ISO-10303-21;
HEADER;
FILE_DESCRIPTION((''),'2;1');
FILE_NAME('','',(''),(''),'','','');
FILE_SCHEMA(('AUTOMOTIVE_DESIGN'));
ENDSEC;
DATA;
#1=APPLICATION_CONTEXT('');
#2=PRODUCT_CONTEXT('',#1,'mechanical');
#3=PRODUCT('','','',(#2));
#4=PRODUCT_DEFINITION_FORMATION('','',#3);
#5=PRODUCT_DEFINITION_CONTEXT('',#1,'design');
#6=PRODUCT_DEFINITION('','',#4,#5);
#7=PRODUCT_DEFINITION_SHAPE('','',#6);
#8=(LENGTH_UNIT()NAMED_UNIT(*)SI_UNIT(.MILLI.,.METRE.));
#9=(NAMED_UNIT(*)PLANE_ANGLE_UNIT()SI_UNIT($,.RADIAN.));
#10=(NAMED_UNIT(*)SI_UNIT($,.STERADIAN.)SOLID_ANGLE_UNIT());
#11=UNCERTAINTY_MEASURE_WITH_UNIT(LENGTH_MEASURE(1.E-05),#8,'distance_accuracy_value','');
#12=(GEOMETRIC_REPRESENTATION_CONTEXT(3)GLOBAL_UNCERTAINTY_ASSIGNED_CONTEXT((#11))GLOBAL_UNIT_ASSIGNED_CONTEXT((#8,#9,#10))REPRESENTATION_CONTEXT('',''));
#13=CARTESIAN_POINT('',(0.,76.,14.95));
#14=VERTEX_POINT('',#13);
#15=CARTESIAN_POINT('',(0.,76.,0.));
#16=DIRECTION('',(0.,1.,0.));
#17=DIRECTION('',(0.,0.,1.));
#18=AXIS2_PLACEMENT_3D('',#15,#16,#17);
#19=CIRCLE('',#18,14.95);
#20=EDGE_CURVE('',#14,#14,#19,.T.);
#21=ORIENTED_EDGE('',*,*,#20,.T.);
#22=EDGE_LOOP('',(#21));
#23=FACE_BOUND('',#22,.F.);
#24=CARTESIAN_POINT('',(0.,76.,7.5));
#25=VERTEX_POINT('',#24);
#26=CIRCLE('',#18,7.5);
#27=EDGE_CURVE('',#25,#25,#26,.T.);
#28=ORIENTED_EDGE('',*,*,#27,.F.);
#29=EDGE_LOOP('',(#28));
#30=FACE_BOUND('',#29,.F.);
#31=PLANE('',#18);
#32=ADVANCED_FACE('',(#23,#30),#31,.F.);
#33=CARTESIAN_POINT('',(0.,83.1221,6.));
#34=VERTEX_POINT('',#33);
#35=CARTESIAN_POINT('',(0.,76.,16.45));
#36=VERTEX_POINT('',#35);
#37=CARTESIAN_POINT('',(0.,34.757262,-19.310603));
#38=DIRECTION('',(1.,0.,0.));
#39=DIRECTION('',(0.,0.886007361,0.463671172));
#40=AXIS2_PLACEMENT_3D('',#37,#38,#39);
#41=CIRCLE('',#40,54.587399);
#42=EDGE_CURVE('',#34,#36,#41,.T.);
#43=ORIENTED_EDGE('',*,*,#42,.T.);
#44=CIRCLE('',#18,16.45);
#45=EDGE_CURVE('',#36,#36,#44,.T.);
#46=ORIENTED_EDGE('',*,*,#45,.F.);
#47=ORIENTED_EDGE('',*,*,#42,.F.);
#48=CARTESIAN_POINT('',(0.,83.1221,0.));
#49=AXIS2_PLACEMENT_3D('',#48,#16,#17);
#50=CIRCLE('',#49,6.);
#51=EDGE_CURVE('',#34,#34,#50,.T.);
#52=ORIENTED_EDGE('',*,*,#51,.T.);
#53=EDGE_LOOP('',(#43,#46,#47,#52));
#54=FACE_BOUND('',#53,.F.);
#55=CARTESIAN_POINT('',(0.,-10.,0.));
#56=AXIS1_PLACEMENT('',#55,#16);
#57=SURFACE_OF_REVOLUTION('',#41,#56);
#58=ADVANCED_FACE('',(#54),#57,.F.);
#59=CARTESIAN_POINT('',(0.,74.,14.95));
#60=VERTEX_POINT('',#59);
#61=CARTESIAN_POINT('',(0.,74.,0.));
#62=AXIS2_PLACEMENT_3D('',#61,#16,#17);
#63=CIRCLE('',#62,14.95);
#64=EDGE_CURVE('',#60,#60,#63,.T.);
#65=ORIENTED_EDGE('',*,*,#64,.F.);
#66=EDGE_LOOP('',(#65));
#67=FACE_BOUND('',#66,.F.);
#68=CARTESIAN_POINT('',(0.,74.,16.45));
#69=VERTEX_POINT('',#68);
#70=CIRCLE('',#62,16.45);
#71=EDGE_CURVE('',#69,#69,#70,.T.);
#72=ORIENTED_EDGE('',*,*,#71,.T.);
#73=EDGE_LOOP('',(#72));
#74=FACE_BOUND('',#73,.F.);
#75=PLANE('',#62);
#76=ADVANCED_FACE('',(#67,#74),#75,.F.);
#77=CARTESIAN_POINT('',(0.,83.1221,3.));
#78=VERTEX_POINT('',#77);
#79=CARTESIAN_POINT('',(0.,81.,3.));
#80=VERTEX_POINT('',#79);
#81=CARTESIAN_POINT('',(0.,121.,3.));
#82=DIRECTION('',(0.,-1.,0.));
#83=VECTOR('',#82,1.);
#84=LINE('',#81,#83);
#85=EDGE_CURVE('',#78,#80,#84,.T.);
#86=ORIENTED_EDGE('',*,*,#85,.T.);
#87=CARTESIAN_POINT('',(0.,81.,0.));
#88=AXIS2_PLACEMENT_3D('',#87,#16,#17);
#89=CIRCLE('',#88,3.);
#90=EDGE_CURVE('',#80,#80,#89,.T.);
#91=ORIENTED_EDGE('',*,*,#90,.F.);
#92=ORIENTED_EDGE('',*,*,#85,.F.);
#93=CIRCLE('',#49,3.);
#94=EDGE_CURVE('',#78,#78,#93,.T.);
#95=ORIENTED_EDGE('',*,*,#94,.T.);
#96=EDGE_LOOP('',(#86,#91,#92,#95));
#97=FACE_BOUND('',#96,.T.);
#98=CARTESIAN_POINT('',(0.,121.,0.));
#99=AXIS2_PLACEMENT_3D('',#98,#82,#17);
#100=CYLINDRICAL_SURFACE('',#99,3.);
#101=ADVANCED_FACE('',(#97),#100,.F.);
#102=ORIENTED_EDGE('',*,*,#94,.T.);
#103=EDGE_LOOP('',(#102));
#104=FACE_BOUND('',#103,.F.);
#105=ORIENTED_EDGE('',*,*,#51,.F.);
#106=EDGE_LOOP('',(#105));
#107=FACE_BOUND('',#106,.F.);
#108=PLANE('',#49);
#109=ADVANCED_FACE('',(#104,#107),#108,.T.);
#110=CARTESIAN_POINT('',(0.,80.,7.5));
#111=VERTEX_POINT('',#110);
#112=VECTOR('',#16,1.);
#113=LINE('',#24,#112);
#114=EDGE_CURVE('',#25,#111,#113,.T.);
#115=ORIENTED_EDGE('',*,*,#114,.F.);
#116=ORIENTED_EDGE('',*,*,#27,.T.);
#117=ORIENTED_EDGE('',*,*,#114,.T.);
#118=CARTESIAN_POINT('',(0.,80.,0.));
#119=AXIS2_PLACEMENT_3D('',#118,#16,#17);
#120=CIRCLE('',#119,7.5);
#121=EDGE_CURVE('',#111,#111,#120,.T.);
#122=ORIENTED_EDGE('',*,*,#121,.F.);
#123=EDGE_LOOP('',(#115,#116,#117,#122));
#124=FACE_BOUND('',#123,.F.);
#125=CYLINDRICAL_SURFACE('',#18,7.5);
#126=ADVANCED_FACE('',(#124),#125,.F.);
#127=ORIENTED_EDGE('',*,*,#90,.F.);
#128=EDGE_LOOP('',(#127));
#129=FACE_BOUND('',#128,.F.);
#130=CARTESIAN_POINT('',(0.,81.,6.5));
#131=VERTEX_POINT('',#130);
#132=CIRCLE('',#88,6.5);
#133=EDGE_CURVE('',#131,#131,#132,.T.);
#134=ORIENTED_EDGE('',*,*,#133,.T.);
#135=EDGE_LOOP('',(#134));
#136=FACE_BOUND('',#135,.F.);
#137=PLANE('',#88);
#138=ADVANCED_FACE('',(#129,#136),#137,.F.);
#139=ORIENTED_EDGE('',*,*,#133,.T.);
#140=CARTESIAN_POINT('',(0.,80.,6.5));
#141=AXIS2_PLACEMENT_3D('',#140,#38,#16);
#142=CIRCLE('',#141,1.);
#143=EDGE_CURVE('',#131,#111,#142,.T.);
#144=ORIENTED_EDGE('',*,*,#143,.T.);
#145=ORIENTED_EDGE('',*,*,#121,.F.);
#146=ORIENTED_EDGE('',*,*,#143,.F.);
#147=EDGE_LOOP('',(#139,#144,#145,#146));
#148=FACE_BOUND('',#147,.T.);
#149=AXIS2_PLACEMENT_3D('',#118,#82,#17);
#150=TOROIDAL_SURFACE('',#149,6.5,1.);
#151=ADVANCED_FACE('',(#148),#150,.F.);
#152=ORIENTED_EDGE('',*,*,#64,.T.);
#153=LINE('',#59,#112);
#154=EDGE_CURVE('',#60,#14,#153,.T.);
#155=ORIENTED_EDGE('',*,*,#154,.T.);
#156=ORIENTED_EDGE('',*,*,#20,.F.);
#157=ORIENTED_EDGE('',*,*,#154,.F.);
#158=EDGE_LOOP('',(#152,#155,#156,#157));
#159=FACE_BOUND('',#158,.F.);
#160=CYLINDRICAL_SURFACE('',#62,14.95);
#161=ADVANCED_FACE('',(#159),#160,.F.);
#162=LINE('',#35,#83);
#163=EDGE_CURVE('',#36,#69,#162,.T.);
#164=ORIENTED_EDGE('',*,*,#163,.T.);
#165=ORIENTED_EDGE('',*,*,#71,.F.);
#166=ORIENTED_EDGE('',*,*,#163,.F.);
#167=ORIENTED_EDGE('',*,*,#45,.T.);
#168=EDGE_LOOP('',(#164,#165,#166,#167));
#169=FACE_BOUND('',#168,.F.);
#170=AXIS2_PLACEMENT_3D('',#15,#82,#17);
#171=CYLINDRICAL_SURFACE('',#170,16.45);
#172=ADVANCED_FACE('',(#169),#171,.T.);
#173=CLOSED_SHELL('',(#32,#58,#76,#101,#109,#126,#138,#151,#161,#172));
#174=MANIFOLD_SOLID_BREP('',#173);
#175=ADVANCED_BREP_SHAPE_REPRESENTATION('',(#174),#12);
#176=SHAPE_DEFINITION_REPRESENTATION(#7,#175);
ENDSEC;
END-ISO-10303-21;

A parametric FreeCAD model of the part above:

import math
import FreeCAD as App
import Part
import Sketcher

V = App.Vector
Q = App.Units.Quantity

doc = App.newDocument("Part")
body = doc.addObject("PartDesign::Body", "Body")

sketch1 = doc.addObject("Sketcher::SketchObject", "Sketch")
body.addObject(sketch1)
sketch1.AttachmentSupport = (doc.YZ_Plane, [""])
sketch1.MapMode = "FlatFace"
sketch1.addGeometry([
    Part.LineSegment(V(81, 3, 0), V(83.1, 3, 0)),
    Part.LineSegment(V(83.1, 3, 0), V(83.1, 6, 0)),
    Part.ArcOfCircle(Part.Circle(V(34.8, -19.3, 0), V(0, 0, 1), 54.6), math.radians(27.62), math.radians(40.93)),
    Part.LineSegment(V(76, 16.4, 0), V(74, 16.4, 0)),
    Part.LineSegment(V(74, 16.4, 0), V(74, 14.9, 0)),
    Part.LineSegment(V(74, 14.9, 0), V(76, 14.9, 0)),
    Part.LineSegment(V(76, 14.9, 0), V(76, 7.5, 0)),
    Part.LineSegment(V(76, 7.5, 0), V(80, 7.5, 0)),
    Part.ArcOfCircle(Part.Circle(V(80, 6.5, 0), V(0, 0, 1), 1), math.radians(0), math.radians(90)),
    Part.LineSegment(V(81, 6.5, 0), V(81, 3, 0)),
], False)
sketch1.addConstraint([
    Sketcher.Constraint("Coincident", 0, 2, 1, 1),
    Sketcher.Constraint("Coincident", 1, 2, 2, 1),
    Sketcher.Constraint("Coincident", 2, 2, 3, 1),
    Sketcher.Constraint("Coincident", 3, 2, 4, 1),
    Sketcher.Constraint("Coincident", 4, 2, 5, 1),
    Sketcher.Constraint("Coincident", 5, 2, 6, 1),
    Sketcher.Constraint("Coincident", 6, 2, 7, 1),
    Sketcher.Constraint("Tangent", 7, 2, 8, 2),
    Sketcher.Constraint("Tangent", 8, 1, 9, 1),
    Sketcher.Constraint("Coincident", 9, 2, 0, 1),
    Sketcher.Constraint("Horizontal", 0),
    Sketcher.Constraint("Vertical", 1),
    Sketcher.Constraint("Horizontal", 3),
    Sketcher.Constraint("Vertical", 4),
    Sketcher.Constraint("Horizontal", 5),
    Sketcher.Constraint("Vertical", 6),
    Sketcher.Constraint("Horizontal", 7),
    Sketcher.Constraint("Vertical", 9),
    Sketcher.Constraint("Vertical", 2, 2, 5, 2),
    Sketcher.Constraint("Radius", 8, Q("1 mm")),
    Sketcher.Constraint("DistanceX", 3, 2, 3, 1, Q("2 mm")),
    Sketcher.Constraint("DistanceX", 7, 1, 7, 2, Q("4 mm")),
    Sketcher.Constraint("DistanceY", 1, 1, 1, 2, Q("3 mm")),
    Sketcher.Constraint("DistanceY", 4, 2, 4, 1, Q("1.5 mm")),
    Sketcher.Constraint("DistanceY", -1, 1, 0, 2, Q("3 mm")),
    Sketcher.Constraint("DistanceY", -1, 1, 6, 2, Q("7.5 mm")),
    Sketcher.Constraint("DistanceX", -1, 1, 8, 3, Q("80 mm")),
    Sketcher.Constraint("DistanceY", 6, 2, 6, 1, Q("7.45 mm")),
    Sketcher.Constraint("Radius", 2, Q("54.5874 mm")),
    Sketcher.Constraint("DistanceX", 0, 1, 0, 2, Q("2.122 mm")),
])
revolution = doc.addObject("PartDesign::Revolution", "Revolution")
body.addObject(revolution)
revolution.Profile = sketch1
revolution.ReferenceAxis = (sketch1, ["H_Axis"])
revolution.Angle = 360

doc.recompute()
